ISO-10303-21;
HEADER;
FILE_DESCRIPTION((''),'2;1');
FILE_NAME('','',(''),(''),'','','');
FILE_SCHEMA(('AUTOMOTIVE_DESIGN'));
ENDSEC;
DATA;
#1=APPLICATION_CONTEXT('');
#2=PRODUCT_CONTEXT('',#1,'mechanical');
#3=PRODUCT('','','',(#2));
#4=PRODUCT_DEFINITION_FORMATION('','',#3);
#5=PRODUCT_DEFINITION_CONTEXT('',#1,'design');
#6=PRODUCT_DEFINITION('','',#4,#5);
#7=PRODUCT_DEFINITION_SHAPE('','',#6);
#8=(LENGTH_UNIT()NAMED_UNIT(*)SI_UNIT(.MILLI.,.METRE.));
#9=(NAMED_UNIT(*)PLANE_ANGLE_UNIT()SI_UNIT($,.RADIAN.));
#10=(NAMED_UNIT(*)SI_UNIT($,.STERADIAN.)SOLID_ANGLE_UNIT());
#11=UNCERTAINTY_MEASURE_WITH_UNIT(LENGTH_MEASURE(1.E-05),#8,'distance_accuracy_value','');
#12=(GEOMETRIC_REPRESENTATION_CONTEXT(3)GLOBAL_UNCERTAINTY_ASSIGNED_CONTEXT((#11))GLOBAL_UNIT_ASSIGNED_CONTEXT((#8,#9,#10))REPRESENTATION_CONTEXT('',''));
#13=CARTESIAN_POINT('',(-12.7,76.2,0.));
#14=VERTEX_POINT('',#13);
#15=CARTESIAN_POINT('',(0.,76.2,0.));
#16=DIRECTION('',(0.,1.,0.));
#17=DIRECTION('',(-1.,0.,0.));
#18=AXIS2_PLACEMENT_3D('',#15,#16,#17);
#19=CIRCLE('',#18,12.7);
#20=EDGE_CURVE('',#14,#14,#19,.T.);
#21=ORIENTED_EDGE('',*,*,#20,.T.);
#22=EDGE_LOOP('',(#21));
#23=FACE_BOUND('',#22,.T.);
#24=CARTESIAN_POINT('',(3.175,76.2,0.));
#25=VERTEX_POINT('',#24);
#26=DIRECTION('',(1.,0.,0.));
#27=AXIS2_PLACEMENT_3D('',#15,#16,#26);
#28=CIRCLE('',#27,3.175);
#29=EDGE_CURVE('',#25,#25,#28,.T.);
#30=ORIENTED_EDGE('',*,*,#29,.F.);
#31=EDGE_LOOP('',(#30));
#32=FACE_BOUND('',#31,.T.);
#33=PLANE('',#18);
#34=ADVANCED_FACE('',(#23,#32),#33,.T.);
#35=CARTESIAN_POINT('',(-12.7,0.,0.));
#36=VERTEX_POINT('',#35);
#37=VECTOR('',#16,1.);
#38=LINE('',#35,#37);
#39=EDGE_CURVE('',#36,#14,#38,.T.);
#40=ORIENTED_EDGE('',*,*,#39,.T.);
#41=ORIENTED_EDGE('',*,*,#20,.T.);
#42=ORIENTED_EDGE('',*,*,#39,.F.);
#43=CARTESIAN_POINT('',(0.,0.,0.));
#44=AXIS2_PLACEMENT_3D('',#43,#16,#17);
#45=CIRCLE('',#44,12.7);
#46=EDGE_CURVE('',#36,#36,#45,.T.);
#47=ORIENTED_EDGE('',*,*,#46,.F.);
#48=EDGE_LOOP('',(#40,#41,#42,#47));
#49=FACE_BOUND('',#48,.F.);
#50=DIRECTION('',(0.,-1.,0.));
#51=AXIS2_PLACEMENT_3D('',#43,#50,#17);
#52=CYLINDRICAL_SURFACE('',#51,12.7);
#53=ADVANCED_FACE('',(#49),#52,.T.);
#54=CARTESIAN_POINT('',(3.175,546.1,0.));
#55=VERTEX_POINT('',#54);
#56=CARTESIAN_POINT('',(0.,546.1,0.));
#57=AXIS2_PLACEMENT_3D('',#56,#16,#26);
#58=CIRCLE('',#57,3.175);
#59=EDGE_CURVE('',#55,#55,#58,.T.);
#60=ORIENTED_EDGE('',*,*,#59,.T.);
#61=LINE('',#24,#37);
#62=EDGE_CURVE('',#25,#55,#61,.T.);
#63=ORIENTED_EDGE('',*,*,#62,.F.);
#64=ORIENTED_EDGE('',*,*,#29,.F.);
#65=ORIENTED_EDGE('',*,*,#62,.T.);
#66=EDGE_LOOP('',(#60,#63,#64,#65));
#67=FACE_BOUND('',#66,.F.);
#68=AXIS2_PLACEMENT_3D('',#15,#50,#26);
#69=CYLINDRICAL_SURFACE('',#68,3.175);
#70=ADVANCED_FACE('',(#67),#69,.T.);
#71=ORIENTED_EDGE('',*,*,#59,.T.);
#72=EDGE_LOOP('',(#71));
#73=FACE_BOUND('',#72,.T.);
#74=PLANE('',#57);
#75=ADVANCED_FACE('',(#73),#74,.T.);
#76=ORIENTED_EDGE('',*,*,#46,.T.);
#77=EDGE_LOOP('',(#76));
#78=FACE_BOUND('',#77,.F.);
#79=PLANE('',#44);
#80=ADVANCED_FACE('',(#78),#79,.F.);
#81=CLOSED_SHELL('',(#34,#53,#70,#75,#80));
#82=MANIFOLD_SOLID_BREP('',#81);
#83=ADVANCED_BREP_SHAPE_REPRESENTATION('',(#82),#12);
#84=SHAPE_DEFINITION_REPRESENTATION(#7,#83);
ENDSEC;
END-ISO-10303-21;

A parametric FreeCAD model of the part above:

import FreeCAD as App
import Part
import Sketcher
from FreeCAD import Vector
Q = App.Units.Quantity

doc = App.newDocument("Part")
params = doc.addObject("Spreadsheet::Sheet", "Params")
for row, (alias, value) in enumerate([
    ("sketch1_diameter", "1 in"),
    ("pad1_length", "3 in"),
    ("sketch2_diameter", "0.25 in"),
    ("pad2_length", "18.5 in"),
], start=1):
    params.set(f"A{row}", alias)
    params.set(f"B{row}", "=" + value)
    params.setAlias(f"B{row}", alias)

body = doc.addObject("PartDesign::Body", "Body")

# Sketch on XZ plane
sketch1 = doc.addObject("Sketcher::SketchObject", "Sketch")
body.addObject(sketch1)
sketch1.AttachmentSupport = (doc.XZ_Plane, [""])
sketch1.MapMode = "FlatFace"
sketch1.addGeometry(Part.Circle(Vector(0, 0, 0), Vector(0, 0, 1), 12.7), False)
sketch1.addConstraint(Sketcher.Constraint("Coincident", 0, 3, -1, 1))
sketch1.addConstraint(Sketcher.Constraint("Diameter", 0, Q("1 in")))
sketch1.setExpression("Constraints[1]", "Params.sketch1_diameter")
pad1 = doc.addObject("PartDesign::Pad", "Pad")
body.addObject(pad1)
pad1.Profile = sketch1
pad1.setExpression("Length", "Params.pad1_length")
pad1.Reversed = True

# Sketch on XZ plane
sketch2 = doc.addObject("Sketcher::SketchObject", "Sketch001")
body.addObject(sketch2)
sketch2.AttachmentSupport = (doc.XZ_Plane, [""])
sketch2.MapMode = "FlatFace"
sketch2.AttachmentOffset = App.Placement(Vector(0, 0, -3 * 25.4), App.Rotation())
sketch2.addGeometry(Part.Circle(Vector(0, 0, 0), Vector(0, 0, 1), 3.175), False)
sketch2.addConstraint(Sketcher.Constraint("Coincident", 0, 3, -1, 1))
sketch2.addConstraint(Sketcher.Constraint("Diameter", 0, Q("0.25 in")))
sketch2.setExpression("Constraints[1]", "Params.sketch2_diameter")
pad2 = doc.addObject("PartDesign::Pad", "Pad001")
body.addObject(pad2)
pad2.Profile = sketch2
pad2.setExpression("Length", "Params.pad2_length")
pad2.Reversed = True

doc.recompute()
